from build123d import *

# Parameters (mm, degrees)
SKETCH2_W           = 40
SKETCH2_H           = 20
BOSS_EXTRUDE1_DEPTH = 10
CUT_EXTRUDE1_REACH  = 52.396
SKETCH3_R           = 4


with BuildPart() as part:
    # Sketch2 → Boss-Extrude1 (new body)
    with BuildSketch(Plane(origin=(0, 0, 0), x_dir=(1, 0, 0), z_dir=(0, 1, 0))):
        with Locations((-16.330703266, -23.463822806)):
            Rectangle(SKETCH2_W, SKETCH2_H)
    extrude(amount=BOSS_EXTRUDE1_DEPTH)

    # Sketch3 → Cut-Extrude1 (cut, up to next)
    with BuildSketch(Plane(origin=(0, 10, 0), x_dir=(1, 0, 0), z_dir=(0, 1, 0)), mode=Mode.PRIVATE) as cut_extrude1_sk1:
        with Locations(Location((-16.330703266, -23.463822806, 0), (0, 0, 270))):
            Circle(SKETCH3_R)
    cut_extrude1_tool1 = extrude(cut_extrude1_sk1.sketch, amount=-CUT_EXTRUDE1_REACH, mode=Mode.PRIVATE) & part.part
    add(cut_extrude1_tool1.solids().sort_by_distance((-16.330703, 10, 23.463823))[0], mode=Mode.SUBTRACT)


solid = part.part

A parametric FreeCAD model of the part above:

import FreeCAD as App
import Part
import Sketcher

V = App.Vector
Q = App.Units.Quantity

doc = App.newDocument("Part")
body = doc.addObject("PartDesign::Body", "Body")

sketch1 = body.newObject("Sketcher::SketchObject", "Sketch")
sketch1.AttachmentSupport = (doc.getObject("XZ_Plane"), [""])
sketch1.MapMode = "FlatFace"
sketch1.addGeometry(Part.LineSegment(V(-36, 13, 0), V(-36, 33, 0)), False)
sketch1.addGeometry(Part.LineSegment(V(-36, 33, 0), V(4, 33, 0)), False)
sketch1.addGeometry(Part.LineSegment(V(4, 33, 0), V(4, 13, 0)), False)
sketch1.addGeometry(Part.LineSegment(V(4, 13, 0), V(-36, 13, 0)), False)
sketch1.addConstraint(Sketcher.Constraint("Coincident", 0, 2, 1, 1))
sketch1.addConstraint(Sketcher.Constraint("Coincident", 1, 2, 2, 1))
sketch1.addConstraint(Sketcher.Constraint("Coincident", 2, 2, 3, 1))
sketch1.addConstraint(Sketcher.Constraint("Coincident", 3, 2, 0, 1))
sketch1.addConstraint(Sketcher.Constraint("Vertical", 0))
sketch1.addConstraint(Sketcher.Constraint("Horizontal", 1))
sketch1.addConstraint(Sketcher.Constraint("Vertical", 2))
sketch1.addConstraint(Sketcher.Constraint("Horizontal", 3))
sketch1.addConstraint(Sketcher.Constraint("DistanceX", 1, 1, 1, 2, Q("40 mm")))
sketch1.addConstraint(Sketcher.Constraint("DistanceY", 0, 1, 0, 2, Q("20 mm")))
sketch1.addConstraint(Sketcher.Constraint("DistanceX", 0, 2, -1, 1, Q("36.330703 mm")))
sketch1.addConstraint(Sketcher.Constraint("DistanceY", -1, 1, 0, 2, Q("33.463823 mm")))
pad1 = body.newObject("PartDesign::Pad", "Pad")
pad1.Profile = sketch1
pad1.Length = 10
pad1.Reversed = True

sketch2 = body.newObject("Sketcher::SketchObject", "Sketch001")
sketch2.AttachmentSupport = (doc.getObject("XZ_Plane"), [""])
sketch2.MapMode = "FlatFace"
sketch2.AttachmentOffset = App.Placement(V(0, 0, -10), App.Rotation())
sketch2.addGeometry(Part.Circle(V(-16.3, 23.5, 0), V(0, 0, 1), 4), False)
sketch2.addConstraint(Sketcher.Constraint("Diameter", 0, Q("8 mm")))
sketch2.addConstraint(Sketcher.Constraint("DistanceX", 0, 3, -1, 1, Q("16.330703 mm")))
sketch2.addConstraint(Sketcher.Constraint("DistanceY", -1, 1, 0, 3, Q("23.463823 mm")))
pocket1 = body.newObject("PartDesign::Pocket", "Pocket")
pocket1.Profile = sketch2
pocket1.Type = "UpToFirst"
pocket1.Reversed = True

doc.recompute()
